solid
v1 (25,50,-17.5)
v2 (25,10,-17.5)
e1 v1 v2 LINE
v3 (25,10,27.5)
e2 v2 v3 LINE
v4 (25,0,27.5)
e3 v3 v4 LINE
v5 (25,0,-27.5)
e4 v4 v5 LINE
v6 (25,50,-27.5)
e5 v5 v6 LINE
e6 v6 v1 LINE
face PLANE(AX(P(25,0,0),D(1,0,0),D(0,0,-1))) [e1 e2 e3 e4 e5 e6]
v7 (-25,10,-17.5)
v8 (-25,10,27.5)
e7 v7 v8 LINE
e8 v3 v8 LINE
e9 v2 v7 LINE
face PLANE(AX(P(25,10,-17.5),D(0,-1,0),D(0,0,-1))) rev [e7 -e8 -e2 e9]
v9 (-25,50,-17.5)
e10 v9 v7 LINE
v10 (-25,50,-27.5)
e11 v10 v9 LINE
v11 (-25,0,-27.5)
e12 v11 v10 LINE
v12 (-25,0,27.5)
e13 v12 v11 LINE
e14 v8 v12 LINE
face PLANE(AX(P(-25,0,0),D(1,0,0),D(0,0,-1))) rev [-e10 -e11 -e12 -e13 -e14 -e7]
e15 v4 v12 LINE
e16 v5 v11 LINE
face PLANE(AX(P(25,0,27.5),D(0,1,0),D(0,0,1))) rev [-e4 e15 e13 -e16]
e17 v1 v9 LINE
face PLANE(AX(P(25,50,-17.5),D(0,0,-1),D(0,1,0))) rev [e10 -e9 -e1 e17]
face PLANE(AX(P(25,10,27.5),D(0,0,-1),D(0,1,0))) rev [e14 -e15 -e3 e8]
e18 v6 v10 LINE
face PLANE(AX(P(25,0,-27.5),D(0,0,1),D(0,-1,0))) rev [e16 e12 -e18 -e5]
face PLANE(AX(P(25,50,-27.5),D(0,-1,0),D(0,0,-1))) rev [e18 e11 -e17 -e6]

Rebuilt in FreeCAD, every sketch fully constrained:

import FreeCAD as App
import Part
import Sketcher
Q = App.Units.Quantity


def add_polygon(sketch, points):
    """Adds a closed chain of lines whose ends are joined by coincident constraints."""
    first, n = sketch.GeometryCount, len(points)
    for a, b in zip(points, points[1:] + points[:1]):
        sketch.addGeometry(Part.LineSegment(App.Vector(*a, 0), App.Vector(*b, 0)), False)
    for i in range(n):
        sketch.addConstraint(Sketcher.Constraint("Coincident", first + i, 2, first + (i + 1) % n, 1))

doc = App.newDocument("Part")
params = doc.addObject("Spreadsheet::Sheet", "Params")
for row, (alias, value) in enumerate([
    ("sketch1_width", "50 mm"),
    ("sketch1_width2", "40 mm"),
    ("sketch1_height", "55 mm"),
    ("pad1_length", "50 mm"),
], start=1):
    params.set(f"A{row}", alias)
    params.set(f"B{row}", "=" + value)
    params.setAlias(f"B{row}", alias)

body = doc.addObject("PartDesign::Body", "Body")

# Sketch on YZ plane
sketch1 = doc.addObject("Sketcher::SketchObject", "Sketch")
body.addObject(sketch1)
sketch1.AttachmentSupport = (doc.YZ_Plane, [""])
sketch1.MapMode = "FlatFace"
add_polygon(sketch1, [(0, 28), (0, -28), (50, -28), (50, -18), (10, -18), (10, 28)])  # lines 0-5
sketch1.addConstraint([
    Sketcher.Constraint("Vertical", 0),
    Sketcher.Constraint("Horizontal", 1),
    Sketcher.Constraint("Vertical", 2),
    Sketcher.Constraint("Horizontal", 3),
    Sketcher.Constraint("Vertical", 4),
    Sketcher.Constraint("Horizontal", 5),
    Sketcher.Constraint("Symmetric", 0, 2, 5, 2, -1, 1),
    Sketcher.Constraint("Equal", 5, 2),
    Sketcher.Constraint("DistanceX", 1, 1, 1, 2, Q("50 mm")),
    Sketcher.Constraint("DistanceX", 3, 2, 3, 1, Q("40 mm")),
    Sketcher.Constraint("DistanceY", 0, 2, 0, 1, Q("55 mm")),
])
sketch1.setExpression("Constraints[14]", "Params.sketch1_width")
sketch1.setExpression("Constraints[15]", "Params.sketch1_width2")
sketch1.setExpression("Constraints[16]", "Params.sketch1_height")
pad1 = doc.addObject("PartDesign::Pad", "Pad")
body.addObject(pad1)
pad1.Profile = sketch1
pad1.setExpression("Length", "Params.pad1_length")
pad1.Midplane = True

doc.recompute()
